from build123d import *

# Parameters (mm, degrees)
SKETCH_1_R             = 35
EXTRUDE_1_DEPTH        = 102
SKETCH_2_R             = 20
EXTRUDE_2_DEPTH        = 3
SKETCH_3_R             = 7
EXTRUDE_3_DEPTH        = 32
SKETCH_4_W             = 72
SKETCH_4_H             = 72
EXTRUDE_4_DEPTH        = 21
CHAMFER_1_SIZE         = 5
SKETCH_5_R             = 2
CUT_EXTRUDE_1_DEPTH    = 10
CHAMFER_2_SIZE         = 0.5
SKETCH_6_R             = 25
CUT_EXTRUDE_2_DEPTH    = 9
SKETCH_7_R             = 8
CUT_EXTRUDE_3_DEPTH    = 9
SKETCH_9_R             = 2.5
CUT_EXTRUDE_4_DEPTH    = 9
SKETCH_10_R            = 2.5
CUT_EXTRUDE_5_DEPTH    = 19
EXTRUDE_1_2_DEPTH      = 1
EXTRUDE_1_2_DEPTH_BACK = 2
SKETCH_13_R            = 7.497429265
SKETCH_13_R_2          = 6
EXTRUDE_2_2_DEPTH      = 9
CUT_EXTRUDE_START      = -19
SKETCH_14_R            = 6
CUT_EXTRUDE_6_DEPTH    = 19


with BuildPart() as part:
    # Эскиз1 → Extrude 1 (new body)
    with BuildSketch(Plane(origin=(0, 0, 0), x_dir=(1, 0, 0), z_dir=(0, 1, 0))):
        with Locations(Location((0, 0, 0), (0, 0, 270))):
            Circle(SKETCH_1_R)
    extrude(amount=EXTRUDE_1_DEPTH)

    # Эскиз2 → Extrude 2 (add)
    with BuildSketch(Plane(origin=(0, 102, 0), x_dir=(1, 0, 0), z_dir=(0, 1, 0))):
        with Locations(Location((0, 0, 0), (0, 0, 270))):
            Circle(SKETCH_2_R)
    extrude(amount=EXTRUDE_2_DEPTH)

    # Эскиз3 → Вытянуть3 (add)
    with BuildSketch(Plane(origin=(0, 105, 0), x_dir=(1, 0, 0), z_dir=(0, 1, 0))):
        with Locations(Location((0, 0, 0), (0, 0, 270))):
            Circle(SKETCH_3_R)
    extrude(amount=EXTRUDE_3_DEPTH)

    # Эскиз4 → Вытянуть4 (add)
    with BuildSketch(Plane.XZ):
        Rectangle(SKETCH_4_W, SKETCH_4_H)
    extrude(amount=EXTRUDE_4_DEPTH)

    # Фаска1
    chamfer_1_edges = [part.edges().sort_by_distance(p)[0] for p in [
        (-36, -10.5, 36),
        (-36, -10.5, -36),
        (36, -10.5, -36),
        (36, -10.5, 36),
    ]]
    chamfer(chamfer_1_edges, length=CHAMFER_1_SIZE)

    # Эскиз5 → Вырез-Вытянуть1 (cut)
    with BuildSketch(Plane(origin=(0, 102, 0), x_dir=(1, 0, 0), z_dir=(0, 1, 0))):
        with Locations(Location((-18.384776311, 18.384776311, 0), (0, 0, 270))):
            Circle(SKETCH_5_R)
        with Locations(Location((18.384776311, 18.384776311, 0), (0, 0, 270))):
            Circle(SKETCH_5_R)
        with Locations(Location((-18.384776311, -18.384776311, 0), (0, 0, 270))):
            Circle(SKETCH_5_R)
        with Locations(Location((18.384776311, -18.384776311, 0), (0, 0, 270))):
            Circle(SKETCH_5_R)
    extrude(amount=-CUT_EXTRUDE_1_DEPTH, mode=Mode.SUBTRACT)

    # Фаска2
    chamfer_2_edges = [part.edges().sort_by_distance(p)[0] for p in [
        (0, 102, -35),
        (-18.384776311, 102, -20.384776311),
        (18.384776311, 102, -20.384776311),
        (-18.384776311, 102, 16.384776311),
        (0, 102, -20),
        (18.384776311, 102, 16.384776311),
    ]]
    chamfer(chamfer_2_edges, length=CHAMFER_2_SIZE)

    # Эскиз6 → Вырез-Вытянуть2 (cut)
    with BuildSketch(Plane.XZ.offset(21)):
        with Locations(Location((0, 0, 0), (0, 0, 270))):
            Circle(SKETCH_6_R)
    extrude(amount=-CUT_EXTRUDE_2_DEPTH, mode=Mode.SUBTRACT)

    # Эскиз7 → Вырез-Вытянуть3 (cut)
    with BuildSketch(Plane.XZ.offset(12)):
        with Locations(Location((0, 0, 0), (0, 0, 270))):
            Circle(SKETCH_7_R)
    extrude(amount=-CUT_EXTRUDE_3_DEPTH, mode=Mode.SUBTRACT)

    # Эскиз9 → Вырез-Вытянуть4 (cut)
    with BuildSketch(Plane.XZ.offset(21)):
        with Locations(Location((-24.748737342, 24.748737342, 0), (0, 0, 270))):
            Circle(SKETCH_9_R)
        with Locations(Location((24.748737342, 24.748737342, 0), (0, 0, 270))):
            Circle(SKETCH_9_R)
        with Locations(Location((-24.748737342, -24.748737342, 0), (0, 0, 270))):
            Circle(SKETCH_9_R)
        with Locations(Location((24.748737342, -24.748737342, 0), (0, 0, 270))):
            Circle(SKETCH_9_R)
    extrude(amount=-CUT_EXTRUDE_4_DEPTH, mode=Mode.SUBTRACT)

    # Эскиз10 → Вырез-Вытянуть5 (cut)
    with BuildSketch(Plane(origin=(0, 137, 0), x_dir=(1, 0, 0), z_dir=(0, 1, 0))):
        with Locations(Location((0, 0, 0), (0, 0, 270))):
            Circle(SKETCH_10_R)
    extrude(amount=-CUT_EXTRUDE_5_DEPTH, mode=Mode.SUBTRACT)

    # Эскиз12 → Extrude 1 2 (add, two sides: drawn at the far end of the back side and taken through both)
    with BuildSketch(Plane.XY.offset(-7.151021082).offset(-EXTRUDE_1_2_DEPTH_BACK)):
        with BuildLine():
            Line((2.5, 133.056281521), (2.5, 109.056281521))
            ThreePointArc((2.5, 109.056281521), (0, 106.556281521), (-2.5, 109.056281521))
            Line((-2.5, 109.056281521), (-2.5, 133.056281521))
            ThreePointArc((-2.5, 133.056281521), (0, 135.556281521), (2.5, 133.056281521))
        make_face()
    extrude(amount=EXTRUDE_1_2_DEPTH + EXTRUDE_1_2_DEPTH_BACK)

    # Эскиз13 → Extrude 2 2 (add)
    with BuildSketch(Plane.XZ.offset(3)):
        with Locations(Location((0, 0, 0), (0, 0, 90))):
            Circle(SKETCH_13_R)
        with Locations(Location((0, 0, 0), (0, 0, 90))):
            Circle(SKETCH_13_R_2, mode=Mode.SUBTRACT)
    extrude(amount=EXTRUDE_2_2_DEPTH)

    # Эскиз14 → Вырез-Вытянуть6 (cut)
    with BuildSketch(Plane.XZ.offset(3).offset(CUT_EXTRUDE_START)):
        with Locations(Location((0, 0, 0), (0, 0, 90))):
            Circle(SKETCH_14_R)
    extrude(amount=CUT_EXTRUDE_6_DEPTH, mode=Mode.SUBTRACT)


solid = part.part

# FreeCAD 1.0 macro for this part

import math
import FreeCAD as App
import Part
import Sketcher

V = App.Vector
Q = App.Units.Quantity


def edges_at(feature, points):
    """Names of the edges that pass closest to the given points."""
    edges = feature.Shape.Edges
    near = lambda p: min(range(len(edges)), key=lambda i: edges[i].distToShape(Part.Vertex(*p))[0])
    return sorted({f"Edge{near(p) + 1}" for p in points})


def add_polygon(sketch, points):
    """Adds a closed chain of lines whose ends are joined by coincident constraints."""
    first, n = sketch.GeometryCount, len(points)
    for a, b in zip(points, points[1:] + points[:1]):
        sketch.addGeometry(Part.LineSegment(App.Vector(*a, 0), App.Vector(*b, 0)), False)
    for i in range(n):
        sketch.addConstraint(Sketcher.Constraint("Coincident", first + i, 2, first + (i + 1) % n, 1))

doc = App.newDocument("Part")
body = doc.addObject("PartDesign::Body", "Body")

sketch1 = body.newObject("Sketcher::SketchObject", "Sketch")
sketch1.AttachmentSupport = (doc.getObject("XZ_Plane"), [""])
sketch1.MapMode = "FlatFace"
sketch1.addGeometry(Part.Circle(V(0, 0, 0), V(0, 0, 1), 35), False)
sketch1.addConstraint([
    Sketcher.Constraint("Coincident", 0, 3, -1, 1),
    Sketcher.Constraint("Diameter", 0, Q("70 mm")),
])
pad1 = body.newObject("PartDesign::Pad", "Pad")
pad1.Profile = sketch1
pad1.Length = 102
pad1.Reversed = True

sketch2 = body.newObject("Sketcher::SketchObject", "Sketch001")
sketch2.AttachmentSupport = (doc.getObject("XZ_Plane"), [""])
sketch2.MapMode = "FlatFace"
sketch2.AttachmentOffset = App.Placement(V(0, 0, -102), App.Rotation())
sketch2.addGeometry(Part.Circle(V(0, 0, 0), V(0, 0, 1), 20), False)
sketch2.addConstraint([
    Sketcher.Constraint("Coincident", 0, 3, -1, 1),
    Sketcher.Constraint("Diameter", 0, Q("40 mm")),
])
pad2 = body.newObject("PartDesign::Pad", "Pad001")
pad2.Profile = sketch2
pad2.Length = 3
pad2.Reversed = True

sketch3 = body.newObject("Sketcher::SketchObject", "Sketch002")
sketch3.AttachmentSupport = (doc.getObject("XZ_Plane"), [""])
sketch3.MapMode = "FlatFace"
sketch3.AttachmentOffset = App.Placement(V(0, 0, -105), App.Rotation())
sketch3.addGeometry(Part.Circle(V(0, 0, 0), V(0, 0, 1), 7), False)
sketch3.addConstraint([
    Sketcher.Constraint("Coincident", 0, 3, -1, 1),
    Sketcher.Constraint("Diameter", 0, Q("14 mm")),
])
pad3 = body.newObject("PartDesign::Pad", "Pad002")
pad3.Profile = sketch3
pad3.Length = 32
pad3.Reversed = True

sketch4 = body.newObject("Sketcher::SketchObject", "Sketch003")
sketch4.AttachmentSupport = (doc.getObject("XZ_Plane"), [""])
sketch4.MapMode = "FlatFace"
add_polygon(sketch4, [(-36, 36), (-36, -36), (36, -36), (36, 36)])
sketch4.addConstraint([
    Sketcher.Constraint("Vertical", 0),
    Sketcher.Constraint("Horizontal", 1),
    Sketcher.Constraint("Vertical", 2),
    Sketcher.Constraint("Horizontal", 3),
    Sketcher.Constraint("Symmetric", 0, 2, 2, 2, -1, 1),
    Sketcher.Constraint("Equal", 3, 0),
    Sketcher.Constraint("DistanceX", 1, 1, 1, 2, Q("72 mm")),
])
pad4 = body.newObject("PartDesign::Pad", "Pad003")
pad4.Profile = sketch4
pad4.Length = 21
doc.recompute()

chamfer = body.newObject("PartDesign::Chamfer", "Chamfer")
chamfer.Base = (pad4, edges_at(pad4, [
    (-36, -10.5, 36),
    (-36, -10.5, -36),
    (36, -10.5, -36),
    (36, -10.5, 36),
]))
chamfer.Size = 5

sketch5 = body.newObject("Sketcher::SketchObject", "Sketch004")
sketch5.AttachmentSupport = (doc.getObject("XZ_Plane"), [""])
sketch5.MapMode = "FlatFace"
sketch5.AttachmentOffset = App.Placement(V(0, 0, -102), App.Rotation())
sketch5.addGeometry([
    Part.Circle(V(-18.4, -18.4, 0), V(0, 0, 1), 2),
    Part.Circle(V(18.4, -18.4, 0), V(0, 0, 1), 2),
    Part.Circle(V(-18.4, 18.4, 0), V(0, 0, 1), 2),
    Part.Circle(V(18.4, 18.4, 0), V(0, 0, 1), 2),
], False)
sketch5.addConstraint([
    Sketcher.Constraint("Equal", 0, 1),
    Sketcher.Constraint("Equal", 1, 2),
    Sketcher.Constraint("Equal", 2, 3),
    Sketcher.Constraint("Symmetric", 1, 3, 2, 3, -1, 1),
    Sketcher.Constraint("Symmetric", 0, 3, 3, 3, -1, 1),
    Sketcher.Constraint("Symmetric", 0, 3, 1, 3, -2),
    Sketcher.Constraint("Diameter", 0, Q("4 mm")),
    Sketcher.Constraint("DistanceX", 0, 3, -1, 1, Q("18.384776 mm")),
    Sketcher.Constraint("DistanceY", 0, 3, -1, 1, Q("18.384776 mm")),
])
pocket1 = body.newObject("PartDesign::Pocket", "Pocket")
pocket1.Profile = sketch5
pocket1.Length = 10
pocket1.Reversed = True
doc.recompute()

chamfer2 = body.newObject("PartDesign::Chamfer", "Chamfer001")
chamfer2.Base = (pocket1, edges_at(pocket1, [
    (0, 102, -35),
    (-18.385, 102, -20.385),
    (18.385, 102, -20.385),
    (-18.385, 102, 16.385),
    (0, 102, -20),
    (18.385, 102, 16.385),
]))
chamfer2.Size = 0.5

sketch6 = body.newObject("Sketcher::SketchObject", "Sketch005")
sketch6.AttachmentSupport = (doc.getObject("XZ_Plane"), [""])
sketch6.MapMode = "FlatFace"
sketch6.AttachmentOffset = App.Placement(V(0, 0, 21), App.Rotation())
sketch6.addGeometry(Part.Circle(V(0, 0, 0), V(0, 0, 1), 25), False)
sketch6.addConstraint([
    Sketcher.Constraint("Coincident", 0, 3, -1, 1),
    Sketcher.Constraint("Diameter", 0, Q("50 mm")),
])
pocket2 = body.newObject("PartDesign::Pocket", "Pocket001")
pocket2.Profile = sketch6
pocket2.Length = 9

sketch7 = body.newObject("Sketcher::SketchObject", "Sketch006")
sketch7.AttachmentSupport = (doc.getObject("XZ_Plane"), [""])
sketch7.MapMode = "FlatFace"
sketch7.AttachmentOffset = App.Placement(V(0, 0, 12), App.Rotation())
sketch7.addGeometry(Part.Circle(V(0, 0, 0), V(0, 0, 1), 8), False)
sketch7.addConstraint([
    Sketcher.Constraint("Coincident", 0, 3, -1, 1),
    Sketcher.Constraint("Diameter", 0, Q("16 mm")),
])
pocket3 = body.newObject("PartDesign::Pocket", "Pocket002")
pocket3.Profile = sketch7
pocket3.Length = 9

sketch8 = body.newObject("Sketcher::SketchObject", "Sketch007")
sketch8.AttachmentSupport = (doc.getObject("XZ_Plane"), [""])
sketch8.MapMode = "FlatFace"
sketch8.AttachmentOffset = App.Placement(V(0, 0, 21), App.Rotation())
sketch8.addGeometry([
    Part.Circle(V(-24.7, 24.7, 0), V(0, 0, 1), 2.5),
    Part.Circle(V(24.7, 24.7, 0), V(0, 0, 1), 2.5),
    Part.Circle(V(-24.7, -24.7, 0), V(0, 0, 1), 2.5),
    Part.Circle(V(24.7, -24.7, 0), V(0, 0, 1), 2.5),
], False)
sketch8.addConstraint([
    Sketcher.Constraint("Equal", 0, 1),
    Sketcher.Constraint("Equal", 1, 2),
    Sketcher.Constraint("Equal", 2, 3),
    Sketcher.Constraint("Symmetric", 1, 3, 2, 3, -1, 1),
    Sketcher.Constraint("Symmetric", 0, 3, 3, 3, -1, 1),
    Sketcher.Constraint("Symmetric", 0, 3, 1, 3, -2),
    Sketcher.Constraint("Diameter", 0, Q("5 mm")),
    Sketcher.Constraint("DistanceX", 0, 3, -1, 1, Q("24.748737 mm")),
    Sketcher.Constraint("DistanceY", -1, 1, 0, 3, Q("24.748737 mm")),
])
pocket4 = body.newObject("PartDesign::Pocket", "Pocket003")
pocket4.Profile = sketch8
pocket4.Length = 9

sketch9 = body.newObject("Sketcher::SketchObject", "Sketch008")
sketch9.AttachmentSupport = (doc.getObject("XZ_Plane"), [""])
sketch9.MapMode = "FlatFace"
sketch9.AttachmentOffset = App.Placement(V(0, 0, -137), App.Rotation())
sketch9.addGeometry(Part.Circle(V(0, 0, 0), V(0, 0, 1), 2.5), False)
sketch9.addConstraint([
    Sketcher.Constraint("Coincident", 0, 3, -1, 1),
    Sketcher.Constraint("Diameter", 0, Q("5 mm")),
])
pocket5 = body.newObject("PartDesign::Pocket", "Pocket004")
pocket5.Profile = sketch9
pocket5.Length = 19
pocket5.Reversed = True

sketch10 = body.newObject("Sketcher::SketchObject", "Sketch009")
sketch10.AttachmentSupport = (doc.getObject("XY_Plane"), [""])
sketch10.MapMode = "FlatFace"
sketch10.AttachmentOffset = App.Placement(V(0, 0, -7.151021), App.Rotation())
sketch10.addGeometry([
    Part.LineSegment(V(2.5, 109.1, 0), V(2.5, 133.1, 0)),
    Part.ArcOfCircle(Part.Circle(V(0, 133.1, 0), V(0, 0, 1), 2.5), math.radians(0), math.radians(180)),
    Part.LineSegment(V(-2.5, 133.1, 0), V(-2.5, 109.1, 0)),
    Part.ArcOfCircle(Part.Circle(V(0, 109.1, 0), V(0, 0, 1), 2.5), math.radians(180), math.radians(360)),
], False)
sketch10.addConstraint([
    Sketcher.Constraint("Tangent", 0, 2, 1, 1),
    Sketcher.Constraint("Tangent", 1, 2, 2, 1),
    Sketcher.Constraint("Tangent", 2, 2, 3, 1),
    Sketcher.Constraint("Tangent", 3, 2, 0, 1),
    Sketcher.Constraint("Vertical", 0),
    Sketcher.Constraint("Vertical", 2),
    Sketcher.Constraint("PointOnObject", 1, 3, -2),
    Sketcher.Constraint("Radius", 1, Q("2.5 mm")),
    Sketcher.Constraint("DistanceY", 0, 1, 0, 2, Q("24 mm")),
    Sketcher.Constraint("DistanceY", -1, 1, 1, 3, Q("133.056282 mm")),
])
pad5 = body.newObject("PartDesign::Pad", "Pad004")
pad5.Profile = sketch10
pad5.Type = "TwoLengths"
pad5.Length = 1
pad5.Length2 = 2

sketch11 = body.newObject("Sketcher::SketchObject", "Sketch010")
sketch11.AttachmentSupport = (doc.getObject("XZ_Plane"), [""])
sketch11.MapMode = "FlatFace"
sketch11.AttachmentOffset = App.Placement(V(0, 0, 3), App.Rotation())
sketch11.addGeometry([
    Part.Circle(V(0, 0, 0), V(0, 0, 1), 7),
    Part.Circle(V(0, 0, 0), V(0, 0, 1), 6),
], False)
sketch11.addConstraint([
    Sketcher.Constraint("Coincident", 0, 3, -1, 1),
    Sketcher.Constraint("Coincident", 1, 3, -1, 1),
    Sketcher.Constraint("Diameter", 1, Q("12 mm")),
    Sketcher.Constraint("Diameter", 0, Q("14.994859 mm")),
])
pad6 = body.newObject("PartDesign::Pad", "Pad005")
pad6.Profile = sketch11
pad6.Length = 9

sketch12 = body.newObject("Sketcher::SketchObject", "Sketch011")
sketch12.AttachmentSupport = (doc.getObject("XZ_Plane"), [""])
sketch12.MapMode = "FlatFace"
sketch12.AttachmentOffset = App.Placement(V(0, 0, -16), App.Rotation())
sketch12.addGeometry(Part.Circle(V(0, 0, 0), V(0, 0, 1), 6), False)
sketch12.addConstraint([
    Sketcher.Constraint("Coincident", 0, 3, -1, 1),
    Sketcher.Constraint("Diameter", 0, Q("12 mm")),
])
pocket6 = body.newObject("PartDesign::Pocket", "Pocket005")
pocket6.Profile = sketch12
pocket6.Length = 19
pocket6.Reversed = True

doc.recompute()
